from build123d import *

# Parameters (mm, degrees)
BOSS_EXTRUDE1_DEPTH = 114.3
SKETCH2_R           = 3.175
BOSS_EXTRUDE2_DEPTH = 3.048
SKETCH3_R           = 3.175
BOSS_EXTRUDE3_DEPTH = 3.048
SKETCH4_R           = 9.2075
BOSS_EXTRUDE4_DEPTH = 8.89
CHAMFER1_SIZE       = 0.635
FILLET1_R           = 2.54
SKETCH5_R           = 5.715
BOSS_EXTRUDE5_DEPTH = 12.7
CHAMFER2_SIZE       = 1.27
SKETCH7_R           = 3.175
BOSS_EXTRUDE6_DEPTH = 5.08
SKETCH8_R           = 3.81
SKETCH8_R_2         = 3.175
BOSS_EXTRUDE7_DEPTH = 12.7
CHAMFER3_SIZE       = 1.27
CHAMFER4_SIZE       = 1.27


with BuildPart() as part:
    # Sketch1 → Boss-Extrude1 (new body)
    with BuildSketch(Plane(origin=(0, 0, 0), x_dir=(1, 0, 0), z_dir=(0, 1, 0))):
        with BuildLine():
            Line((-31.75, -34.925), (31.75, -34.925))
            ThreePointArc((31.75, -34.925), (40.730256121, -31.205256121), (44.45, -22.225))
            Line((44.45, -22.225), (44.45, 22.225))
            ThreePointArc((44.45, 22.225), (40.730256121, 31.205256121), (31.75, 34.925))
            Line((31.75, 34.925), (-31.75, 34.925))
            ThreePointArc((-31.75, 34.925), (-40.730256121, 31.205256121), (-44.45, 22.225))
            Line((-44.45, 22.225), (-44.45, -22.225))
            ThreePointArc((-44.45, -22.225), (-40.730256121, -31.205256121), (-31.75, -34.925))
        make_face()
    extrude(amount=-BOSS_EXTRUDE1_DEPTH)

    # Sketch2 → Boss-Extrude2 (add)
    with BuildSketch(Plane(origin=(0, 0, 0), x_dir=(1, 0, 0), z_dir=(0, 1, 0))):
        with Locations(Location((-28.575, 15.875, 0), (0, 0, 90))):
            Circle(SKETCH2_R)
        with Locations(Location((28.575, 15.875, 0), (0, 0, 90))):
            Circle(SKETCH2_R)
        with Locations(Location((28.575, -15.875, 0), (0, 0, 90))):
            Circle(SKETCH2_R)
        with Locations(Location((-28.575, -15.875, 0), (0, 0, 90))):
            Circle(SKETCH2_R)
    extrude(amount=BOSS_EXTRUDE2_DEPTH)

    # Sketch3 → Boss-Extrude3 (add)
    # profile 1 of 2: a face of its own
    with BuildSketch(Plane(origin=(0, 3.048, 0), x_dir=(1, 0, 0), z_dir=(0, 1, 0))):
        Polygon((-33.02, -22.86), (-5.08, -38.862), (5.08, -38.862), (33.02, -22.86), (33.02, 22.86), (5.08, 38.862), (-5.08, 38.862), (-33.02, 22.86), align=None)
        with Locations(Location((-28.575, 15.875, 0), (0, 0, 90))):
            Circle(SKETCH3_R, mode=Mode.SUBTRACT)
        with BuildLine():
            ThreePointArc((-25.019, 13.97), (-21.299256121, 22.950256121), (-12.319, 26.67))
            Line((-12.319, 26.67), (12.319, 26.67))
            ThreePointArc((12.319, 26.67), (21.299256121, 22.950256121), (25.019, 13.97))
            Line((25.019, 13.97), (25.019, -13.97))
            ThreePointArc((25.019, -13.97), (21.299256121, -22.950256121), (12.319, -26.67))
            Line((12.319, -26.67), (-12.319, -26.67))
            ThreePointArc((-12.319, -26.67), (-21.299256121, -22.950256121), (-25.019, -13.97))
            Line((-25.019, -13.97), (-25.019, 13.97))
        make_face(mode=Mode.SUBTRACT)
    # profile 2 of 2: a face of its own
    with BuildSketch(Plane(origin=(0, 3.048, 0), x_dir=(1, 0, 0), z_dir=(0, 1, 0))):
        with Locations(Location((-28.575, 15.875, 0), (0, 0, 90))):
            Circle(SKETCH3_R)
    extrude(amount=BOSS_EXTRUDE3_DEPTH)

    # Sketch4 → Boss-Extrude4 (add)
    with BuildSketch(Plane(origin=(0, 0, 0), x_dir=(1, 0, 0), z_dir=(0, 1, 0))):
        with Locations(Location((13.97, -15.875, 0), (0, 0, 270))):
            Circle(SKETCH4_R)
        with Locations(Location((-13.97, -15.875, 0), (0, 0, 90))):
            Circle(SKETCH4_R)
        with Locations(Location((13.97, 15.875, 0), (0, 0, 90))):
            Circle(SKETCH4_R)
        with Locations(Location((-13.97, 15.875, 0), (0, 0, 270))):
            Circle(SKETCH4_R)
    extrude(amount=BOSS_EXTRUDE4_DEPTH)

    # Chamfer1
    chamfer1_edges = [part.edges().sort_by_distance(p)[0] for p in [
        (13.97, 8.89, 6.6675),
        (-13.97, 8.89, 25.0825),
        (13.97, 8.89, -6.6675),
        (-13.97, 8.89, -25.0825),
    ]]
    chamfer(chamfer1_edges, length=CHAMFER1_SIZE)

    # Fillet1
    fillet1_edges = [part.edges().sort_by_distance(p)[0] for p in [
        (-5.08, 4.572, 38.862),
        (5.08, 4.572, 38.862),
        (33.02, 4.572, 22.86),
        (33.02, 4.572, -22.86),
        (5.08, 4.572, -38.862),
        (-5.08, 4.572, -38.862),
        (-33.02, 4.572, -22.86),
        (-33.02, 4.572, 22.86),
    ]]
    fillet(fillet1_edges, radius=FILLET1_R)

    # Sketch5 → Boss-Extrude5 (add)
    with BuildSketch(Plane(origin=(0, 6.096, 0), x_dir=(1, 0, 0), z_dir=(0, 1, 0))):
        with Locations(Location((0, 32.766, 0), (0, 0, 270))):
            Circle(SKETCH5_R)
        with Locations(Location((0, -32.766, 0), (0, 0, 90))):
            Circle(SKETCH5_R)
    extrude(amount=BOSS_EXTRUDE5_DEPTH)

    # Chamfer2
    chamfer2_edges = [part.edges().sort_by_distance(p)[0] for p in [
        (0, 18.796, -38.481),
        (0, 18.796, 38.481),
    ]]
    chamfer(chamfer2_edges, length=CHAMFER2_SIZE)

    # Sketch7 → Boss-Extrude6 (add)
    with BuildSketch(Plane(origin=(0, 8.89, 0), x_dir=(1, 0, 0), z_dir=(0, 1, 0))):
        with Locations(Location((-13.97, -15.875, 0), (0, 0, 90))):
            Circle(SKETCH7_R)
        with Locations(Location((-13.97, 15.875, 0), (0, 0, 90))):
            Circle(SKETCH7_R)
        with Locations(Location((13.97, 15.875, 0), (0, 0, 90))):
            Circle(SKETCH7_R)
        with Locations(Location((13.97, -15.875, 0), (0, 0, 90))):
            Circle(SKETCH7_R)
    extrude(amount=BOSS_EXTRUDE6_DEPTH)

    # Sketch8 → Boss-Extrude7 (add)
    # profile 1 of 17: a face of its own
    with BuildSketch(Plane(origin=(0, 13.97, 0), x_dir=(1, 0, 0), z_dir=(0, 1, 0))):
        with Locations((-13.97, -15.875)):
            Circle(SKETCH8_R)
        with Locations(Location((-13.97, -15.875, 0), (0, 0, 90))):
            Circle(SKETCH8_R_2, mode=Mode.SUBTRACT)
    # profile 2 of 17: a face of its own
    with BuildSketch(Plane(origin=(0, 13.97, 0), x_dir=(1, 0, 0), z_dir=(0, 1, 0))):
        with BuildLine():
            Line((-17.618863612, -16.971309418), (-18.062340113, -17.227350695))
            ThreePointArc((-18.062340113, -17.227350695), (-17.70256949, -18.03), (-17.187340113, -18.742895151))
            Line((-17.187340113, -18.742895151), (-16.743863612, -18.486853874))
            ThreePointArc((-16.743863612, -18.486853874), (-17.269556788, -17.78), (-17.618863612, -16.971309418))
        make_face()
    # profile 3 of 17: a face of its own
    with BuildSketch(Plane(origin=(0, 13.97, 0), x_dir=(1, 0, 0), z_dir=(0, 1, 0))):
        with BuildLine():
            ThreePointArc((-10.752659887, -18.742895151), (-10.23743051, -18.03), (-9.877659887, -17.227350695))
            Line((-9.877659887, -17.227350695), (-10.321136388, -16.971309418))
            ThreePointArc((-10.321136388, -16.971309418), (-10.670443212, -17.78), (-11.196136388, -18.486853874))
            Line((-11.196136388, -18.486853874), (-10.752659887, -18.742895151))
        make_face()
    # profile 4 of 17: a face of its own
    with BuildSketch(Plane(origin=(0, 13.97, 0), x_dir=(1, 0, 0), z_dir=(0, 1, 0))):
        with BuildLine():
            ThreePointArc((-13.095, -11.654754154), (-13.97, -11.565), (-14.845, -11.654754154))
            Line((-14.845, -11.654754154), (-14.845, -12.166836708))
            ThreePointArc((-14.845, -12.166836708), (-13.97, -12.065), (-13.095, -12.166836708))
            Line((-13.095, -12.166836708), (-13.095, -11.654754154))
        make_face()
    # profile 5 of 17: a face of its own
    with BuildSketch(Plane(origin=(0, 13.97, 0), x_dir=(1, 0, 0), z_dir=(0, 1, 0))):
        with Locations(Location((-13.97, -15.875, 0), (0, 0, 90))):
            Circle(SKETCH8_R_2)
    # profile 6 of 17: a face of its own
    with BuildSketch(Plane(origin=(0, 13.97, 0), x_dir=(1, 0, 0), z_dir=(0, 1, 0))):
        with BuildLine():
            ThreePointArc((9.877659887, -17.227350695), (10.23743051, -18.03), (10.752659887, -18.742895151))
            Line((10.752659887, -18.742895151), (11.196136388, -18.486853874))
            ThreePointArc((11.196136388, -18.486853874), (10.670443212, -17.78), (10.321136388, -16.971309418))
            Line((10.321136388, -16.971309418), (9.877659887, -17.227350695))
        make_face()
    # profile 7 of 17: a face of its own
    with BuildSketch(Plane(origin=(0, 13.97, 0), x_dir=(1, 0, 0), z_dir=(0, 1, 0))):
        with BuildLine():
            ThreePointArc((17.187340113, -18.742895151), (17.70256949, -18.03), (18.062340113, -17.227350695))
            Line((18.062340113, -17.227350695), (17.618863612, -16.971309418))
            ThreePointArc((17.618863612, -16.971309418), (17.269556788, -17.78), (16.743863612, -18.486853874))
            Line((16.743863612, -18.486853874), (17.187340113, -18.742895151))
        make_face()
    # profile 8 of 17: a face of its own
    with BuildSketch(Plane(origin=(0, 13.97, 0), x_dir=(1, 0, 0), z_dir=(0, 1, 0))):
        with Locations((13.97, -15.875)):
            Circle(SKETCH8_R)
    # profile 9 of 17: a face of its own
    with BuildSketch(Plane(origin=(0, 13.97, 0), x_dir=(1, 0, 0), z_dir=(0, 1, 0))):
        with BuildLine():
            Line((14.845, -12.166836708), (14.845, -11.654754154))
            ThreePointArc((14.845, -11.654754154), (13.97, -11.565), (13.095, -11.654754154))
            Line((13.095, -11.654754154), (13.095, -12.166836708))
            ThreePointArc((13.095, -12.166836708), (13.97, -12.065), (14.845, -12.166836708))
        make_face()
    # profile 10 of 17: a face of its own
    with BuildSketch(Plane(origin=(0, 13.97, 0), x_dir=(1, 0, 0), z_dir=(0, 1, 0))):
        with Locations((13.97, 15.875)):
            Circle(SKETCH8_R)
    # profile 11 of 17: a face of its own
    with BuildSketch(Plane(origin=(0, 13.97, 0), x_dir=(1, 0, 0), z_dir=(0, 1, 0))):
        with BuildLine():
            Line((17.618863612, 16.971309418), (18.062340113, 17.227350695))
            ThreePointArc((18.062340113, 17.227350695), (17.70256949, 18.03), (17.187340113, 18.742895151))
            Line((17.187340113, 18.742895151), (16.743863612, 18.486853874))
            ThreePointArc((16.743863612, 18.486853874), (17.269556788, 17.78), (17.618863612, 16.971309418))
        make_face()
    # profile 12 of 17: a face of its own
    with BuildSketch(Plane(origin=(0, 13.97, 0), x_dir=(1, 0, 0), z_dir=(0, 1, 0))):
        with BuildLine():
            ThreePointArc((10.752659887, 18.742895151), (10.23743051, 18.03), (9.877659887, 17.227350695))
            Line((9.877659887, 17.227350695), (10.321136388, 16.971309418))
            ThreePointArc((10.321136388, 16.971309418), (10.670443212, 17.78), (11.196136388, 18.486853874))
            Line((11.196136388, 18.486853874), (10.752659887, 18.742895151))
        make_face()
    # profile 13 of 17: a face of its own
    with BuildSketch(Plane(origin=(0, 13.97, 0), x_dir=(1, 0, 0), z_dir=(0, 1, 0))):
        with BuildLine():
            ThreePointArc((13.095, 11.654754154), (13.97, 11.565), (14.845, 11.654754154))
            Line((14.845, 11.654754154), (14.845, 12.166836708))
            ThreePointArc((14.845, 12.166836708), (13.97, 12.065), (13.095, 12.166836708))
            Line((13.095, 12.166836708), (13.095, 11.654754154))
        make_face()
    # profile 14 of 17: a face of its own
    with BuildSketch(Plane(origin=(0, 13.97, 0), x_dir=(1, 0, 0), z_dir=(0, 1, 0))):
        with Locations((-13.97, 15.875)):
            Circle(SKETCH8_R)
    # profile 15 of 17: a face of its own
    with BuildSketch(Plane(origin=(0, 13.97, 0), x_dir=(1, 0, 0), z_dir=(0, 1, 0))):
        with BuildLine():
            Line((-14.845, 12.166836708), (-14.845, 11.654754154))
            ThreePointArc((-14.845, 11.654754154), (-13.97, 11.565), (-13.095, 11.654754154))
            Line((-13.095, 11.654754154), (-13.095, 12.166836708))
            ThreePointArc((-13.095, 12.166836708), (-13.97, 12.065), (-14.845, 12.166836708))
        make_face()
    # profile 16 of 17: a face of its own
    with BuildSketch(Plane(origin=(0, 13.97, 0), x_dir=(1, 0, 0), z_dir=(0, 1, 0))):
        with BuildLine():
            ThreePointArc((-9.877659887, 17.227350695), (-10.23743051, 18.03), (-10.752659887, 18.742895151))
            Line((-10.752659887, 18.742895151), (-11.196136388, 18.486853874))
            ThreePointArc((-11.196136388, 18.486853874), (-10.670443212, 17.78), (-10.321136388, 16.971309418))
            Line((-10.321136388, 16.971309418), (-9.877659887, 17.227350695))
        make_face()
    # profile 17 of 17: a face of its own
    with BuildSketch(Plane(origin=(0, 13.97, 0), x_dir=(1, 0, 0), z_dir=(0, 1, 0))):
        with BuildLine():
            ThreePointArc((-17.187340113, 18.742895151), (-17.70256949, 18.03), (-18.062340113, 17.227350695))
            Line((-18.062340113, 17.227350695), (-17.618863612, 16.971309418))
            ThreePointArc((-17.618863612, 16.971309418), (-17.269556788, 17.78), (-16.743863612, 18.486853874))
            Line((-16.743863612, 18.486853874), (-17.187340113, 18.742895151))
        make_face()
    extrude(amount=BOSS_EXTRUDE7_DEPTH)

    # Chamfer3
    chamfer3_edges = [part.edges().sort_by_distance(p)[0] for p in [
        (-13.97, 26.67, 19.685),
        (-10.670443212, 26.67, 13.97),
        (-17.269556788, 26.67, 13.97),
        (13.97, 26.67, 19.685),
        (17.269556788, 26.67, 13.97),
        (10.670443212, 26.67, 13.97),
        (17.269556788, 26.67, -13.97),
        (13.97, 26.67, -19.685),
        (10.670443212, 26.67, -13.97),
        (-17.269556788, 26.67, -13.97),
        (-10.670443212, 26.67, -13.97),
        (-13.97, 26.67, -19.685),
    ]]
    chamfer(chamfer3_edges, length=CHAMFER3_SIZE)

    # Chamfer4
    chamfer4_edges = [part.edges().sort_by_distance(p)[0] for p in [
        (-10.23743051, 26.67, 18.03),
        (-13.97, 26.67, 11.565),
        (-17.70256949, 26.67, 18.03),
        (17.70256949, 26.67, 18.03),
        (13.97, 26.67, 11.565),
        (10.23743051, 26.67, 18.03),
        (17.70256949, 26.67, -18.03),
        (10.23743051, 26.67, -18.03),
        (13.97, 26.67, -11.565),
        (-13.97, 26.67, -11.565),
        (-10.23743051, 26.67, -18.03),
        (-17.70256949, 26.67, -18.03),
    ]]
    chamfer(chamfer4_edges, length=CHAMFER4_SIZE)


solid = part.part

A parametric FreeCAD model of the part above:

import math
import FreeCAD as App
import Part
import Sketcher
from FreeCAD import Vector
Q = App.Units.Quantity


def edges_at(feature, points):
    """Names of the edges that pass closest to the given points."""
    edges = feature.Shape.Edges
    near = lambda p: min(range(len(edges)), key=lambda i: edges[i].distToShape(Part.Vertex(*p))[0])
    return sorted({f"Edge{near(p) + 1}" for p in points})


def add_polygon(sketch, points):
    """Adds a closed chain of lines whose ends are joined by coincident constraints."""
    first, n = sketch.GeometryCount, len(points)
    for a, b in zip(points, points[1:] + points[:1]):
        sketch.addGeometry(Part.LineSegment(App.Vector(*a, 0), App.Vector(*b, 0)), False)
    for i in range(n):
        sketch.addConstraint(Sketcher.Constraint("Coincident", first + i, 2, first + (i + 1) % n, 1))

doc = App.newDocument("Part")
body = doc.addObject("PartDesign::Body", "Body")

# Sketch on XZ plane
sketch1 = body.newObject("Sketcher::SketchObject", "Sketch")
sketch1.AttachmentSupport = (doc.getObject("XZ_Plane"), [""])
sketch1.MapMode = "FlatFace"
sketch1.addGeometry(Part.LineSegment(Vector(-32, 35, 0), Vector(32, 35, 0)), False)
sketch1.addGeometry(Part.ArcOfCircle(Part.Circle(Vector(32, 22, 0), Vector(0, 0, 1), 13), math.radians(0), math.radians(90)), False)
sketch1.addGeometry(Part.LineSegment(Vector(44, 22, 0), Vector(44, -22, 0)), False)
sketch1.addGeometry(Part.ArcOfCircle(Part.Circle(Vector(32, -22, 0), Vector(0, 0, 1), 13), math.radians(-90), math.radians(0)), False)
sketch1.addGeometry(Part.LineSegment(Vector(32, -35, 0), Vector(-32, -35, 0)), False)
sketch1.addGeometry(Part.ArcOfCircle(Part.Circle(Vector(-32, -22, 0), Vector(0, 0, 1), 13), math.radians(180), math.radians(270)), False)
sketch1.addGeometry(Part.LineSegment(Vector(-44, -22, 0), Vector(-44, 22, 0)), False)
sketch1.addGeometry(Part.ArcOfCircle(Part.Circle(Vector(-32, 22, 0), Vector(0, 0, 1), 13), math.radians(90), math.radians(180)), False)
sketch1.addConstraint(Sketcher.Constraint("Tangent", 0, 2, 1, 2))
sketch1.addConstraint(Sketcher.Constraint("Tangent", 1, 1, 2, 1))
sketch1.addConstraint(Sketcher.Constraint("Tangent", 2, 2, 3, 2))
sketch1.addConstraint(Sketcher.Constraint("Tangent", 3, 1, 4, 1))
sketch1.addConstraint(Sketcher.Constraint("Tangent", 4, 2, 5, 2))
sketch1.addConstraint(Sketcher.Constraint("Tangent", 5, 1, 6, 1))
sketch1.addConstraint(Sketcher.Constraint("Tangent", 6, 2, 7, 2))
sketch1.addConstraint(Sketcher.Constraint("Tangent", 7, 1, 0, 1))
sketch1.addConstraint(Sketcher.Constraint("Horizontal", 0))
sketch1.addConstraint(Sketcher.Constraint("Vertical", 2))
sketch1.addConstraint(Sketcher.Constraint("Horizontal", 4))
sketch1.addConstraint(Sketcher.Constraint("Vertical", 6))
sketch1.addConstraint(Sketcher.Constraint("Equal", 1, 3))
sketch1.addConstraint(Sketcher.Constraint("Equal", 3, 5))
sketch1.addConstraint(Sketcher.Constraint("Equal", 5, 7))
sketch1.addConstraint(Sketcher.Constraint("Symmetric", 1, 3, 5, 3, -1, 1))
sketch1.addConstraint(Sketcher.Constraint("Radius", 1, Q("0.5 in")))
sketch1.addConstraint(Sketcher.Constraint("DistanceX", 0, 1, 0, 2, Q("2.5 in")))
sketch1.addConstraint(Sketcher.Constraint("DistanceY", 2, 2, 2, 1, Q("1.75 in")))
pad1 = body.newObject("PartDesign::Pad", "Pad")
pad1.Profile = sketch1
pad1.Length = Q("4.5 in")

# Sketch on XZ plane
sketch2 = body.newObject("Sketcher::SketchObject", "Sketch001")
sketch2.AttachmentSupport = (doc.getObject("XZ_Plane"), [""])
sketch2.MapMode = "FlatFace"
sketch2.addGeometry(Part.Circle(Vector(-28.6, -15.9, 0), Vector(0, 0, 1), 3.2), False)
sketch2.addGeometry(Part.Circle(Vector(28.6, -15.9, 0), Vector(0, 0, 1), 3.2), False)
sketch2.addGeometry(Part.Circle(Vector(28.6, 15.9, 0), Vector(0, 0, 1), 3.2), False)
sketch2.addGeometry(Part.Circle(Vector(-28.6, 15.9, 0), Vector(0, 0, 1), 3.2), False)
sketch2.addConstraint(Sketcher.Constraint("Equal", 0, 1))
sketch2.addConstraint(Sketcher.Constraint("Equal", 1, 2))
sketch2.addConstraint(Sketcher.Constraint("Equal", 2, 3))
sketch2.addConstraint(Sketcher.Constraint("Symmetric", 0, 3, 2, 3, -1, 1))
sketch2.addConstraint(Sketcher.Constraint("Symmetric", 1, 3, 3, 3, -1, 1))
sketch2.addConstraint(Sketcher.Constraint("Symmetric", 0, 3, 1, 3, -2))
sketch2.addConstraint(Sketcher.Constraint("Diameter", 0, Q("0.25 in")))
sketch2.addConstraint(Sketcher.Constraint("DistanceX", 0, 3, 1, 3, Q("2.25 in")))
sketch2.addConstraint(Sketcher.Constraint("DistanceY", 1, 3, 2, 3, Q("1.25 in")))
pad2 = body.newObject("PartDesign::Pad", "Pad001")
pad2.Profile = sketch2
pad2.Length = Q("0.12 in")
pad2.Reversed = True

# Sketch on XZ plane
sketch3 = body.newObject("Sketcher::SketchObject", "Sketch002")
sketch3.AttachmentSupport = (doc.getObject("XZ_Plane"), [""])
sketch3.MapMode = "FlatFace"
sketch3.AttachmentOffset = App.Placement(Vector(0, 0, -0.12 * 25.4), App.Rotation())
add_polygon(sketch3, [(-33, 23), (-5, 39), (5, 39), (33, 23), (33, -23), (5, -39), (-5, -39), (-33, -23)])  # lines 0-7
sketch3.addGeometry(Part.LineSegment(Vector(-25, 14, 0), Vector(-25, -14, 0)), False)  # 8
sketch3.addGeometry(Part.ArcOfCircle(Part.Circle(Vector(-12, -14, 0), Vector(0, 0, 1), 13), math.radians(180), math.radians(270)), False)  # 9
sketch3.addGeometry(Part.LineSegment(Vector(-12, -27, 0), Vector(12, -27, 0)), False)  # 10
sketch3.addGeometry(Part.ArcOfCircle(Part.Circle(Vector(12, -14, 0), Vector(0, 0, 1), 13), math.radians(-90), math.radians(0)), False)  # 11
sketch3.addGeometry(Part.LineSegment(Vector(25, -14, 0), Vector(25, 14, 0)), False)  # 12
sketch3.addGeometry(Part.ArcOfCircle(Part.Circle(Vector(12, 14, 0), Vector(0, 0, 1), 13), math.radians(0), math.radians(90)), False)  # 13
sketch3.addGeometry(Part.LineSegment(Vector(12, 27, 0), Vector(-12, 27, 0)), False)  # 14
sketch3.addGeometry(Part.ArcOfCircle(Part.Circle(Vector(-12, 14, 0), Vector(0, 0, 1), 13), math.radians(90), math.radians(180)), False)  # 15
sketch3.addConstraint(Sketcher.Constraint("Tangent", 8, 2, 9, 1))
sketch3.addConstraint(Sketcher.Constraint("Tangent", 9, 2, 10, 1))
sketch3.addConstraint(Sketcher.Constraint("Tangent", 10, 2, 11, 1))
sketch3.addConstraint(Sketcher.Constraint("Tangent", 11, 2, 12, 1))
sketch3.addConstraint(Sketcher.Constraint("Tangent", 12, 2, 13, 1))
sketch3.addConstraint(Sketcher.Constraint("Tangent", 13, 2, 14, 1))
sketch3.addConstraint(Sketcher.Constraint("Tangent", 14, 2, 15, 1))
sketch3.addConstraint(Sketcher.Constraint("Tangent", 15, 2, 8, 1))
sketch3.addConstraint(Sketcher.Constraint("Horizontal", 1))
sketch3.addConstraint(Sketcher.Constraint("Vertical", 3))
sketch3.addConstraint(Sketcher.Constraint("Horizontal", 5))
sketch3.addConstraint(Sketcher.Constraint("Vertical", 7))
sketch3.addConstraint(Sketcher.Constraint("Vertical", 8))
sketch3.addConstraint(Sketcher.Constraint("Horizontal", 10))
sketch3.addConstraint(Sketcher.Constraint("Vertical", 12))
sketch3.addConstraint(Sketcher.Constraint("Horizontal", 14))
sketch3.addConstraint(Sketcher.Constraint("Equal", 9, 11))
sketch3.addConstraint(Sketcher.Constraint("Equal", 11, 13))
sketch3.addConstraint(Sketcher.Constraint("Equal", 13, 15))
sketch3.addConstraint(Sketcher.Constraint("Symmetric", 9, 3, 13, 3, -1, 1))
sketch3.addConstraint(Sketcher.Constraint("Symmetric", 0, 2, 4, 2, -1, 1))
sketch3.addConstraint(Sketcher.Constraint("Symmetric", 2, 2, 6, 2, -1, 1))
sketch3.addConstraint(Sketcher.Constraint("Parallel", 0, 4))
sketch3.addConstraint(Sketcher.Constraint("Parallel", 2, 6))
sketch3.addConstraint(Sketcher.Constraint("Horizontal", 3, 2, 6, 2))
sketch3.addConstraint(Sketcher.Constraint("Vertical", 1, 2, 4, 2))
sketch3.addConstraint(Sketcher.Constraint("Radius", 9, Q("0.5 in")))
sketch3.addConstraint(Sketcher.Constraint("DistanceX", 1, 1, 1, 2, Q("0.4 in")))
sketch3.addConstraint(Sketcher.Constraint("DistanceY", 3, 2, 3, 1, Q("1.8 in")))
sketch3.addConstraint(Sketcher.Constraint("DistanceY", 8, 2, 8, 1, Q("1.1 in")))
sketch3.addConstraint(Sketcher.Constraint("DistanceX", 10, 1, 10, 2, Q("0.97 in")))
sketch3.addConstraint(Sketcher.Constraint("DistanceX", -1, 1, 2, 2, Q("1.3 in")))
sketch3.addConstraint(Sketcher.Constraint("DistanceY", -1, 1, 0, 2, Q("1.53 in")))
pad3 = body.newObject("PartDesign::Pad", "Pad002")
pad3.Profile = sketch3
pad3.Length = Q("0.12 in")
pad3.Reversed = True

# Sketch on XZ plane
sketch4 = body.newObject("Sketcher::SketchObject", "Sketch003")
sketch4.AttachmentSupport = (doc.getObject("XZ_Plane"), [""])
sketch4.MapMode = "FlatFace"
sketch4.addGeometry(Part.Circle(Vector(14, 16, 0), Vector(0, 0, 1), 9), False)
sketch4.addGeometry(Part.Circle(Vector(-14, 16, 0), Vector(0, 0, 1), 9), False)
sketch4.addGeometry(Part.Circle(Vector(14, -16, 0), Vector(0, 0, 1), 9), False)
sketch4.addGeometry(Part.Circle(Vector(-14, -16, 0), Vector(0, 0, 1), 9), False)
sketch4.addConstraint(Sketcher.Constraint("Equal", 0, 1))
sketch4.addConstraint(Sketcher.Constraint("Equal", 1, 2))
sketch4.addConstraint(Sketcher.Constraint("Equal", 2, 3))
sketch4.addConstraint(Sketcher.Constraint("Symmetric", 1, 3, 2, 3, -1, 1))
sketch4.addConstraint(Sketcher.Constraint("Symmetric", 0, 3, 3, 3, -1, 1))
sketch4.addConstraint(Sketcher.Constraint("Symmetric", 0, 3, 1, 3, -2))
sketch4.addConstraint(Sketcher.Constraint("Diameter", 0, Q("0.725 in")))
sketch4.addConstraint(Sketcher.Constraint("DistanceX", 1, 3, 0, 3, Q("1.1 in")))
sketch4.addConstraint(Sketcher.Constraint("DistanceY", 2, 3, 0, 3, Q("1.25 in")))
pad4 = body.newObject("PartDesign::Pad", "Pad003")
pad4.Profile = sketch4
pad4.Length = Q("0.35 in")
pad4.Reversed = True
doc.recompute()

chamfer = body.newObject("PartDesign::Chamfer", "Chamfer")
chamfer.Base = (pad4, edges_at(pad4, [
    (13.97, 8.89, 6.668),
    (-13.97, 8.89, 25.082),
    (13.97, 8.89, -6.668),
    (-13.97, 8.89, -25.082),
]))
chamfer.Size = Q("0.025 in")
doc.recompute()

fillet = body.newObject("PartDesign::Fillet", "Fillet")
fillet.Base = (chamfer, edges_at(chamfer, [
    (-5.08, 4.572, 38.862),
    (5.08, 4.572, 38.862),
    (33.02, 4.572, 22.86),
    (33.02, 4.572, -22.86),
    (5.08, 4.572, -38.862),
    (-5.08, 4.572, -38.862),
    (-33.02, 4.572, -22.86),
    (-33.02, 4.572, 22.86),
]))
fillet.Radius = Q("0.1 in")

# Sketch on XZ plane
sketch5 = body.newObject("Sketcher::SketchObject", "Sketch004")
sketch5.AttachmentSupport = (doc.getObject("XZ_Plane"), [""])
sketch5.MapMode = "FlatFace"
sketch5.AttachmentOffset = App.Placement(Vector(0, 0, -0.24 * 25.4), App.Rotation())
sketch5.addGeometry(Part.Circle(Vector(0, -33, 0), Vector(0, 0, 1), 6), False)
sketch5.addGeometry(Part.Circle(Vector(0, 33, 0), Vector(0, 0, 1), 6), False)
sketch5.addConstraint(Sketcher.Constraint("Equal", 0, 1))
sketch5.addConstraint(Sketcher.Constraint("Symmetric", 0, 3, 1, 3, -1, 1))
sketch5.addConstraint(Sketcher.Constraint("PointOnObject", 0, 3, -2))
sketch5.addConstraint(Sketcher.Constraint("Diameter", 0, Q("0.45 in")))
sketch5.addConstraint(Sketcher.Constraint("DistanceY", 0, 3, -1, 1, Q("1.29 in")))
pad5 = body.newObject("PartDesign::Pad", "Pad004")
pad5.Profile = sketch5
pad5.Length = Q("0.5 in")
pad5.Reversed = True
doc.recompute()

chamfer2 = body.newObject("PartDesign::Chamfer", "Chamfer001")
chamfer2.Base = (pad5, edges_at(pad5, [(0, 18.796, -38.481), (0, 18.796, 38.481)]))
chamfer2.Size = Q("0.05 in")

# Sketch on XZ plane
sketch6 = body.newObject("Sketcher::SketchObject", "Sketch005")
sketch6.AttachmentSupport = (doc.getObject("XZ_Plane"), [""])
sketch6.MapMode = "FlatFace"
sketch6.AttachmentOffset = App.Placement(Vector(0, 0, -0.35 * 25.4), App.Rotation())
sketch6.addGeometry(Part.Circle(Vector(-14, 15.9, 0), Vector(0, 0, 1), 3.2), False)
sketch6.addGeometry(Part.Circle(Vector(-14, -15.9, 0), Vector(0, 0, 1), 3.2), False)
sketch6.addGeometry(Part.Circle(Vector(14, -15.9, 0), Vector(0, 0, 1), 3.2), False)
sketch6.addGeometry(Part.Circle(Vector(14, 15.9, 0), Vector(0, 0, 1), 3.2), False)
sketch6.addConstraint(Sketcher.Constraint("Equal", 0, 1))
sketch6.addConstraint(Sketcher.Constraint("Equal", 1, 2))
sketch6.addConstraint(Sketcher.Constraint("Equal", 2, 3))
sketch6.addConstraint(Sketcher.Constraint("Symmetric", 0, 3, 2, 3, -1, 1))
sketch6.addConstraint(Sketcher.Constraint("Symmetric", 1, 3, 3, 3, -1, 1))
sketch6.addConstraint(Sketcher.Constraint("Symmetric", 1, 3, 2, 3, -2))
sketch6.addConstraint(Sketcher.Constraint("Diameter", 0, Q("0.25 in")))
sketch6.addConstraint(Sketcher.Constraint("DistanceX", 1, 3, 2, 3, Q("1.1 in")))
sketch6.addConstraint(Sketcher.Constraint("DistanceY", 1, 3, 0, 3, Q("1.25 in")))
pad6 = body.newObject("PartDesign::Pad", "Pad005")
pad6.Profile = sketch6
pad6.Length = Q("0.2 in")
pad6.Reversed = True

# Sketch on XZ plane
sketch7 = body.newObject("Sketcher::SketchObject", "Sketch006")
sketch7.AttachmentSupport = (doc.getObject("XZ_Plane"), [""])
sketch7.MapMode = "FlatFace"
sketch7.AttachmentOffset = App.Placement(Vector(0, 0, -0.55 * 25.4), App.Rotation())
sketch7.addGeometry(Part.LineSegment(Vector(-13.1, 12.2, 0), Vector(-13.1, 11.7, 0)), False)
sketch7.addGeometry(Part.ArcOfCircle(Part.Circle(Vector(-14, 15.9, 0), Vector(0, 0, 1), 4.3), math.radians(-102), math.radians(-78)), False)
sketch7.addGeometry(Part.LineSegment(Vector(-14.8, 11.7, 0), Vector(-14.8, 12.2, 0)), False)
sketch7.addGeometry(Part.ArcOfCircle(Part.Circle(Vector(-14, 15.9, 0), Vector(0, 0, 1), 3.8), math.radians(163), math.radians(257)), False)
sketch7.addGeometry(Part.LineSegment(Vector(-17.6, 17, 0), Vector(-18.1, 17.2, 0)), False)
sketch7.addGeometry(Part.ArcOfCircle(Part.Circle(Vector(-14, 15.9, 0), Vector(0, 0, 1), 4.3), math.radians(138), math.radians(162)), False)
sketch7.addGeometry(Part.LineSegment(Vector(-17.2, 18.7, 0), Vector(-16.7, 18.5, 0)), False)
sketch7.addGeometry(Part.ArcOfCircle(Part.Circle(Vector(-14, 15.9, 0), Vector(0, 0, 1), 3.8), math.radians(43), math.radians(137)), False)
sketch7.addGeometry(Part.LineSegment(Vector(-11.2, 18.5, 0), Vector(-10.8, 18.7, 0)), False)
sketch7.addGeometry(Part.ArcOfCircle(Part.Circle(Vector(-14, 15.9, 0), Vector(0, 0, 1), 4.3), math.radians(18), math.radians(42)), False)
sketch7.addGeometry(Part.LineSegment(Vector(-9.9, 17.2, 0), Vector(-10.3, 17, 0)), False)
sketch7.addGeometry(Part.ArcOfCircle(Part.Circle(Vector(-14, 15.9, 0), Vector(0, 0, 1), 3.8), math.radians(-77), math.radians(17)), False)
sketch7.addGeometry(Part.ArcOfCircle(Part.Circle(Vector(14, 15.9, 0), Vector(0, 0, 1), 4.3), math.radians(138), math.radians(162)), False)
sketch7.addGeometry(Part.LineSegment(Vector(10.8, 18.7, 0), Vector(11.2, 18.5, 0)), False)
sketch7.addGeometry(Part.ArcOfCircle(Part.Circle(Vector(14, 15.9, 0), Vector(0, 0, 1), 3.8), math.radians(43), math.radians(137)), False)
sketch7.addGeometry(Part.LineSegment(Vector(16.7, 18.5, 0), Vector(17.2, 18.7, 0)), False)
sketch7.addGeometry(Part.ArcOfCircle(Part.Circle(Vector(14, 15.9, 0), Vector(0, 0, 1), 4.3), math.radians(18), math.radians(42)), False)
sketch7.addGeometry(Part.LineSegment(Vector(18.1, 17.2, 0), Vector(17.6, 17, 0)), False)
sketch7.addGeometry(Part.ArcOfCircle(Part.Circle(Vector(14, 15.9, 0), Vector(0, 0, 1), 3.8), math.radians(-77), math.radians(17)), False)
sketch7.addGeometry(Part.LineSegment(Vector(14.8, 12.2, 0), Vector(14.8, 11.7, 0)), False)
sketch7.addGeometry(Part.ArcOfCircle(Part.Circle(Vector(14, 15.9, 0), Vector(0, 0, 1), 4.3), math.radians(-102), math.radians(-78)), False)
sketch7.addGeometry(Part.LineSegment(Vector(13.1, 11.7, 0), Vector(13.1, 12.2, 0)), False)
sketch7.addGeometry(Part.ArcOfCircle(Part.Circle(Vector(14, 15.9, 0), Vector(0, 0, 1), 3.8), math.radians(163), math.radians(257)), False)
sketch7.addGeometry(Part.LineSegment(Vector(10.3, 17, 0), Vector(9.9, 17.2, 0)), False)
sketch7.addGeometry(Part.LineSegment(Vector(17.6, -17, 0), Vector(18.1, -17.2, 0)), False)
sketch7.addGeometry(Part.ArcOfCircle(Part.Circle(Vector(14, -15.9, 0), Vector(0, 0, 1), 4.3), math.radians(-42), math.radians(-18)), False)
sketch7.addGeometry(Part.LineSegment(Vector(17.2, -18.7, 0), Vector(16.7, -18.5, 0)), False)
sketch7.addGeometry(Part.ArcOfCircle(Part.Circle(Vector(14, -15.9, 0), Vector(0, 0, 1), 3.8), math.radians(-137), math.radians(-43)), False)
sketch7.addGeometry(Part.LineSegment(Vector(11.2, -18.5, 0), Vector(10.8, -18.7, 0)), False)
sketch7.addGeometry(Part.ArcOfCircle(Part.Circle(Vector(14, -15.9, 0), Vector(0, 0, 1), 4.3), math.radians(-162), math.radians(-138)), False)
sketch7.addGeometry(Part.LineSegment(Vector(9.9, -17.2, 0), Vector(10.3, -17, 0)), False)
sketch7.addGeometry(Part.ArcOfCircle(Part.Circle(Vector(14, -15.9, 0), Vector(0, 0, 1), 3.8), math.radians(103), math.radians(197)), False)
sketch7.addGeometry(Part.LineSegment(Vector(13.1, -12.2, 0), Vector(13.1, -11.7, 0)), False)
sketch7.addGeometry(Part.ArcOfCircle(Part.Circle(Vector(14, -15.9, 0), Vector(0, 0, 1), 4.3), math.radians(78), math.radians(102)), False)
sketch7.addGeometry(Part.LineSegment(Vector(14.8, -11.7, 0), Vector(14.8, -12.2, 0)), False)
sketch7.addGeometry(Part.ArcOfCircle(Part.Circle(Vector(14, -15.9, 0), Vector(0, 0, 1), 3.8), math.radians(-17), math.radians(77)), False)
sketch7.addGeometry(Part.LineSegment(Vector(-10.3, -17, 0), Vector(-9.9, -17.2, 0)), False)
sketch7.addGeometry(Part.ArcOfCircle(Part.Circle(Vector(-14, -15.9, 0), Vector(0, 0, 1), 4.3), math.radians(-42), math.radians(-18)), False)
sketch7.addGeometry(Part.LineSegment(Vector(-10.8, -18.7, 0), Vector(-11.2, -18.5, 0)), False)
sketch7.addGeometry(Part.ArcOfCircle(Part.Circle(Vector(-14, -15.9, 0), Vector(0, 0, 1), 3.8), math.radians(-137), math.radians(-43)), False)
sketch7.addGeometry(Part.LineSegment(Vector(-16.7, -18.5, 0), Vector(-17.2, -18.7, 0)), False)
sketch7.addGeometry(Part.ArcOfCircle(Part.Circle(Vector(-14, -15.9, 0), Vector(0, 0, 1), 4.3), math.radians(-162), math.radians(-138)), False)
sketch7.addGeometry(Part.LineSegment(Vector(-18.1, -17.2, 0), Vector(-17.6, -17, 0)), False)
sketch7.addGeometry(Part.ArcOfCircle(Part.Circle(Vector(-14, -15.9, 0), Vector(0, 0, 1), 3.8), math.radians(103), math.radians(197)), False)
sketch7.addGeometry(Part.LineSegment(Vector(-14.8, -12.2, 0), Vector(-14.8, -11.7, 0)), False)
sketch7.addGeometry(Part.ArcOfCircle(Part.Circle(Vector(-14, -15.9, 0), Vector(0, 0, 1), 4.3), math.radians(78), math.radians(102)), False)
sketch7.addGeometry(Part.LineSegment(Vector(-13.1, -11.7, 0), Vector(-13.1, -12.2, 0)), False)
sketch7.addGeometry(Part.ArcOfCircle(Part.Circle(Vector(-14, -15.9, 0), Vector(0, 0, 1), 3.8), math.radians(-17), math.radians(77)), False)
sketch7.addConstraint(Sketcher.Constraint("Coincident", 0, 2, 1, 2))
sketch7.addConstraint(Sketcher.Constraint("Coincident", 1, 1, 2, 1))
sketch7.addConstraint(Sketcher.Constraint("Coincident", 2, 2, 3, 2))
sketch7.addConstraint(Sketcher.Constraint("Coincident", 3, 1, 4, 1))
sketch7.addConstraint(Sketcher.Constraint("Coincident", 4, 2, 5, 2))
sketch7.addConstraint(Sketcher.Constraint("Coincident", 5, 1, 6, 1))
sketch7.addConstraint(Sketcher.Constraint("Coincident", 6, 2, 7, 2))
sketch7.addConstraint(Sketcher.Constraint("Coincident", 7, 1, 8, 1))
sketch7.addConstraint(Sketcher.Constraint("Coincident", 8, 2, 9, 2))
sketch7.addConstraint(Sketcher.Constraint("Coincident", 9, 1, 10, 1))
sketch7.addConstraint(Sketcher.Constraint("Coincident", 10, 2, 11, 2))
sketch7.addConstraint(Sketcher.Constraint("Coincident", 11, 1, 0, 1))
sketch7.addConstraint(Sketcher.Constraint("Coincident", 12, 1, 13, 1))
sketch7.addConstraint(Sketcher.Constraint("Coincident", 13, 2, 14, 2))
sketch7.addConstraint(Sketcher.Constraint("Coincident", 14, 1, 15, 1))
sketch7.addConstraint(Sketcher.Constraint("Coincident", 15, 2, 16, 2))
sketch7.addConstraint(Sketcher.Constraint("Coincident", 16, 1, 17, 1))
sketch7.addConstraint(Sketcher.Constraint("Coincident", 17, 2, 18, 2))
sketch7.addConstraint(Sketcher.Constraint("Coincident", 18, 1, 19, 1))
sketch7.addConstraint(Sketcher.Constraint("Coincident", 19, 2, 20, 2))
sketch7.addConstraint(Sketcher.Constraint("Coincident", 20, 1, 21, 1))
sketch7.addConstraint(Sketcher.Constraint("Coincident", 21, 2, 22, 2))
sketch7.addConstraint(Sketcher.Constraint("Coincident", 22, 1, 23, 1))
sketch7.addConstraint(Sketcher.Constraint("Coincident", 23, 2, 12, 2))
sketch7.addConstraint(Sketcher.Constraint("Coincident", 24, 2, 25, 2))
sketch7.addConstraint(Sketcher.Constraint("Coincident", 25, 1, 26, 1))
sketch7.addConstraint(Sketcher.Constraint("Coincident", 26, 2, 27, 2))
sketch7.addConstraint(Sketcher.Constraint("Coincident", 27, 1, 28, 1))
sketch7.addConstraint(Sketcher.Constraint("Coincident", 28, 2, 29, 2))
sketch7.addConstraint(Sketcher.Constraint("Coincident", 29, 1, 30, 1))
sketch7.addConstraint(Sketcher.Constraint("Coincident", 30, 2, 31, 2))
sketch7.addConstraint(Sketcher.Constraint("Coincident", 31, 1, 32, 1))
sketch7.addConstraint(Sketcher.Constraint("Coincident", 32, 2, 33, 2))
sketch7.addConstraint(Sketcher.Constraint("Coincident", 33, 1, 34, 1))
sketch7.addConstraint(Sketcher.Constraint("Coincident", 34, 2, 35, 2))
sketch7.addConstraint(Sketcher.Constraint("Coincident", 35, 1, 24, 1))
sketch7.addConstraint(Sketcher.Constraint("Coincident", 36, 2, 37, 2))
sketch7.addConstraint(Sketcher.Constraint("Coincident", 37, 1, 38, 1))
sketch7.addConstraint(Sketcher.Constraint("Coincident", 38, 2, 39, 2))
sketch7.addConstraint(Sketcher.Constraint("Coincident", 39, 1, 40, 1))
sketch7.addConstraint(Sketcher.Constraint("Coincident", 40, 2, 41, 2))
sketch7.addConstraint(Sketcher.Constraint("Coincident", 41, 1, 42, 1))
sketch7.addConstraint(Sketcher.Constraint("Coincident", 42, 2, 43, 2))
sketch7.addConstraint(Sketcher.Constraint("Coincident", 43, 1, 44, 1))
sketch7.addConstraint(Sketcher.Constraint("Coincident", 44, 2, 45, 2))
sketch7.addConstraint(Sketcher.Constraint("Coincident", 45, 1, 46, 1))
sketch7.addConstraint(Sketcher.Constraint("Coincident", 46, 2, 47, 2))
sketch7.addConstraint(Sketcher.Constraint("Coincident", 47, 1, 36, 1))
sketch7.addConstraint(Sketcher.Constraint("Vertical", 0))
sketch7.addConstraint(Sketcher.Constraint("Vertical", 2))
sketch7.addConstraint(Sketcher.Constraint("Vertical", 19))
sketch7.addConstraint(Sketcher.Constraint("Vertical", 21))
sketch7.addConstraint(Sketcher.Constraint("Vertical", 32))
sketch7.addConstraint(Sketcher.Constraint("Vertical", 34))
sketch7.addConstraint(Sketcher.Constraint("Vertical", 44))
sketch7.addConstraint(Sketcher.Constraint("Vertical", 46))
sketch7.addConstraint(Sketcher.Constraint("Coincident", 3, 3, 1, 3))
sketch7.addConstraint(Sketcher.Constraint("Coincident", 5, 3, 1, 3))
sketch7.addConstraint(Sketcher.Constraint("Coincident", 7, 3, 1, 3))
sketch7.addConstraint(Sketcher.Constraint("Coincident", 9, 3, 1, 3))
sketch7.addConstraint(Sketcher.Constraint("Coincident", 11, 3, 1, 3))
sketch7.addConstraint(Sketcher.Constraint("Coincident", 14, 3, 12, 3))
sketch7.addConstraint(Sketcher.Constraint("Coincident", 16, 3, 12, 3))
sketch7.addConstraint(Sketcher.Constraint("Coincident", 18, 3, 12, 3))
sketch7.addConstraint(Sketcher.Constraint("Coincident", 20, 3, 12, 3))
sketch7.addConstraint(Sketcher.Constraint("Coincident", 22, 3, 12, 3))
sketch7.addConstraint(Sketcher.Constraint("Coincident", 27, 3, 25, 3))
sketch7.addConstraint(Sketcher.Constraint("Coincident", 29, 3, 25, 3))
sketch7.addConstraint(Sketcher.Constraint("Coincident", 31, 3, 25, 3))
sketch7.addConstraint(Sketcher.Constraint("Coincident", 33, 3, 25, 3))
sketch7.addConstraint(Sketcher.Constraint("Coincident", 35, 3, 25, 3))
sketch7.addConstraint(Sketcher.Constraint("Coincident", 39, 3, 37, 3))
sketch7.addConstraint(Sketcher.Constraint("Coincident", 41, 3, 37, 3))
sketch7.addConstraint(Sketcher.Constraint("Coincident", 43, 3, 37, 3))
sketch7.addConstraint(Sketcher.Constraint("Coincident", 45, 3, 37, 3))
sketch7.addConstraint(Sketcher.Constraint("Coincident", 47, 3, 37, 3))
sketch7.addConstraint(Sketcher.Constraint("Equal", 1, 5))
sketch7.addConstraint(Sketcher.Constraint("Equal", 3, 7))
sketch7.addConstraint(Sketcher.Constraint("Equal", 5, 9))
sketch7.addConstraint(Sketcher.Constraint("Equal", 7, 11))
sketch7.addConstraint(Sketcher.Constraint("Equal", 9, 12))
sketch7.addConstraint(Sketcher.Constraint("Equal", 11, 14))
sketch7.addConstraint(Sketcher.Constraint("Equal", 12, 16))
sketch7.addConstraint(Sketcher.Constraint("Equal", 14, 18))
sketch7.addConstraint(Sketcher.Constraint("Equal", 16, 20))
sketch7.addConstraint(Sketcher.Constraint("Equal", 18, 22))
sketch7.addConstraint(Sketcher.Constraint("Equal", 20, 25))
sketch7.addConstraint(Sketcher.Constraint("Equal", 22, 27))
sketch7.addConstraint(Sketcher.Constraint("Equal", 25, 29))
sketch7.addConstraint(Sketcher.Constraint("Equal", 27, 31))
sketch7.addConstraint(Sketcher.Constraint("Equal", 29, 33))
sketch7.addConstraint(Sketcher.Constraint("Equal", 31, 35))
sketch7.addConstraint(Sketcher.Constraint("Equal", 33, 37))
sketch7.addConstraint(Sketcher.Constraint("Equal", 35, 39))
sketch7.addConstraint(Sketcher.Constraint("Equal", 37, 41))
sketch7.addConstraint(Sketcher.Constraint("Equal", 39, 43))
sketch7.addConstraint(Sketcher.Constraint("Equal", 41, 45))
sketch7.addConstraint(Sketcher.Constraint("Equal", 43, 47))
sketch7.addConstraint(Sketcher.Constraint("Symmetric", 1, 3, 25, 3, -1, 1))
sketch7.addConstraint(Sketcher.Constraint("Symmetric", 12, 3, 37, 3, -1, 1))
sketch7.addConstraint(Sketcher.Constraint("Symmetric", 1, 3, 12, 3, -2))
sketch7.addConstraint(Sketcher.Constraint("Parallel", 4, 6))
sketch7.addConstraint(Sketcher.Constraint("Parallel", 8, 10))
sketch7.addConstraint(Sketcher.Constraint("Parallel", 6, 13))
sketch7.addConstraint(Sketcher.Constraint("Parallel", 10, 15))
sketch7.addConstraint(Sketcher.Constraint("Parallel", 15, 17))
sketch7.addConstraint(Sketcher.Constraint("Parallel", 13, 23))
sketch7.addConstraint(Sketcher.Constraint("Parallel", 23, 24))
sketch7.addConstraint(Sketcher.Constraint("Parallel", 24, 26))
sketch7.addConstraint(Sketcher.Constraint("Parallel", 17, 28))
sketch7.addConstraint(Sketcher.Constraint("Parallel", 28, 30))
sketch7.addConstraint(Sketcher.Constraint("Parallel", 26, 36))
sketch7.addConstraint(Sketcher.Constraint("Parallel", 36, 38))
sketch7.addConstraint(Sketcher.Constraint("Parallel", 30, 40))
sketch7.addConstraint(Sketcher.Constraint("Parallel", 40, 42))
sketch7.addConstraint(Sketcher.Constraint("Horizontal", 0, 2, 1, 1))
sketch7.addConstraint(Sketcher.Constraint("Horizontal", 6, 2, 7, 1))
sketch7.addConstraint(Sketcher.Constraint("Horizontal", 5, 1, 8, 2))
sketch7.addConstraint(Sketcher.Constraint("Horizontal", 4, 2, 9, 1))
sketch7.addConstraint(Sketcher.Constraint("Horizontal", 8, 2, 12, 1))
sketch7.addConstraint(Sketcher.Constraint("Horizontal", 13, 2, 14, 1))
sketch7.addConstraint(Sketcher.Constraint("Horizontal", 9, 1, 16, 1))
sketch7.addConstraint(Sketcher.Constraint("Horizontal", 11, 1, 18, 1))
sketch7.addConstraint(Sketcher.Constraint("Horizontal", 19, 2, 20, 1))
sketch7.addConstraint(Sketcher.Constraint("Horizontal", 17, 2, 22, 1))
sketch7.addConstraint(Sketcher.Constraint("Horizontal", 26, 2, 27, 1))
sketch7.addConstraint(Sketcher.Constraint("Horizontal", 24, 2, 29, 1))
sketch7.addConstraint(Sketcher.Constraint("Horizontal", 32, 2, 33, 1))
sketch7.addConstraint(Sketcher.Constraint("Horizontal", 29, 1, 36, 2))
sketch7.addConstraint(Sketcher.Constraint("Horizontal", 28, 2, 37, 1))
sketch7.addConstraint(Sketcher.Constraint("Horizontal", 38, 2, 39, 1))
sketch7.addConstraint(Sketcher.Constraint("Horizontal", 36, 2, 41, 1))
sketch7.addConstraint(Sketcher.Constraint("Horizontal", 34, 2, 43, 1))
sketch7.addConstraint(Sketcher.Constraint("Horizontal", 44, 2, 45, 1))
sketch7.addConstraint(Sketcher.Constraint("Vertical", 16, 1, 24, 2))
sketch7.addConstraint(Sketcher.Constraint("Vertical", 15, 2, 25, 1))
sketch7.addConstraint(Sketcher.Constraint("Vertical", 21, 2, 31, 1))
sketch7.addConstraint(Sketcher.Constraint("Equal", 4, 6))
sketch7.addConstraint(Sketcher.Constraint("Radius", 3, Q("0.15 in")))
sketch7.addConstraint(Sketcher.Constraint("Angle", 4, Q("150 deg")))
sketch7.addConstraint(Sketcher.Constraint("DistanceX", 1, 3, -1, 1, Q("0.55 in")))
sketch7.addConstraint(Sketcher.Constraint("Radius", 1, Q("4.31 mm")))
sketch7.addConstraint(Sketcher.Constraint("DistanceY", -1, 1, 1, 3, Q("0.625 in")))
sketch7.addConstraint(Sketcher.Constraint("DistanceX", 0, 2, -1, 1, Q("13.095 mm")))
sketch7.addConstraint(Sketcher.Constraint("DistanceY", -1, 1, 3, 1, Q("16.971309 mm")))
pad7 = body.newObject("PartDesign::Pad", "Pad006")
pad7.Profile = sketch7
pad7.Length = Q("0.5 in")
pad7.Reversed = True
doc.recompute()

chamfer3 = body.newObject("PartDesign::Chamfer", "Chamfer002")
chamfer3.Base = (pad7, edges_at(pad7, [
    (-13.97, 26.67, 19.685),
    (-10.67, 26.67, 13.97),
    (-17.27, 26.67, 13.97),
    (13.97, 26.67, 19.685),
    (17.27, 26.67, 13.97),
    (10.67, 26.67, 13.97),
    (17.27, 26.67, -13.97),
    (13.97, 26.67, -19.685),
    (10.67, 26.67, -13.97),
    (-17.27, 26.67, -13.97),
    (-10.67, 26.67, -13.97),
    (-13.97, 26.67, -19.685),
]))
chamfer3.Size = Q("0.05 in")
doc.recompute()

chamfer4 = body.newObject("PartDesign::Chamfer", "Chamfer003")
chamfer4.Base = (chamfer3, edges_at(chamfer3, [
    (-10.237, 26.67, 18.03),
    (-13.97, 26.67, 11.565),
    (-17.703, 26.67, 18.03),
    (17.703, 26.67, 18.03),
    (13.97, 26.67, 11.565),
    (10.237, 26.67, 18.03),
    (17.703, 26.67, -18.03),
    (10.237, 26.67, -18.03),
    (13.97, 26.67, -11.565),
    (-13.97, 26.67, -11.565),
    (-10.237, 26.67, -18.03),
    (-17.703, 26.67, -18.03),
]))
chamfer4.Size = Q("0.05 in")

doc.recompute()
